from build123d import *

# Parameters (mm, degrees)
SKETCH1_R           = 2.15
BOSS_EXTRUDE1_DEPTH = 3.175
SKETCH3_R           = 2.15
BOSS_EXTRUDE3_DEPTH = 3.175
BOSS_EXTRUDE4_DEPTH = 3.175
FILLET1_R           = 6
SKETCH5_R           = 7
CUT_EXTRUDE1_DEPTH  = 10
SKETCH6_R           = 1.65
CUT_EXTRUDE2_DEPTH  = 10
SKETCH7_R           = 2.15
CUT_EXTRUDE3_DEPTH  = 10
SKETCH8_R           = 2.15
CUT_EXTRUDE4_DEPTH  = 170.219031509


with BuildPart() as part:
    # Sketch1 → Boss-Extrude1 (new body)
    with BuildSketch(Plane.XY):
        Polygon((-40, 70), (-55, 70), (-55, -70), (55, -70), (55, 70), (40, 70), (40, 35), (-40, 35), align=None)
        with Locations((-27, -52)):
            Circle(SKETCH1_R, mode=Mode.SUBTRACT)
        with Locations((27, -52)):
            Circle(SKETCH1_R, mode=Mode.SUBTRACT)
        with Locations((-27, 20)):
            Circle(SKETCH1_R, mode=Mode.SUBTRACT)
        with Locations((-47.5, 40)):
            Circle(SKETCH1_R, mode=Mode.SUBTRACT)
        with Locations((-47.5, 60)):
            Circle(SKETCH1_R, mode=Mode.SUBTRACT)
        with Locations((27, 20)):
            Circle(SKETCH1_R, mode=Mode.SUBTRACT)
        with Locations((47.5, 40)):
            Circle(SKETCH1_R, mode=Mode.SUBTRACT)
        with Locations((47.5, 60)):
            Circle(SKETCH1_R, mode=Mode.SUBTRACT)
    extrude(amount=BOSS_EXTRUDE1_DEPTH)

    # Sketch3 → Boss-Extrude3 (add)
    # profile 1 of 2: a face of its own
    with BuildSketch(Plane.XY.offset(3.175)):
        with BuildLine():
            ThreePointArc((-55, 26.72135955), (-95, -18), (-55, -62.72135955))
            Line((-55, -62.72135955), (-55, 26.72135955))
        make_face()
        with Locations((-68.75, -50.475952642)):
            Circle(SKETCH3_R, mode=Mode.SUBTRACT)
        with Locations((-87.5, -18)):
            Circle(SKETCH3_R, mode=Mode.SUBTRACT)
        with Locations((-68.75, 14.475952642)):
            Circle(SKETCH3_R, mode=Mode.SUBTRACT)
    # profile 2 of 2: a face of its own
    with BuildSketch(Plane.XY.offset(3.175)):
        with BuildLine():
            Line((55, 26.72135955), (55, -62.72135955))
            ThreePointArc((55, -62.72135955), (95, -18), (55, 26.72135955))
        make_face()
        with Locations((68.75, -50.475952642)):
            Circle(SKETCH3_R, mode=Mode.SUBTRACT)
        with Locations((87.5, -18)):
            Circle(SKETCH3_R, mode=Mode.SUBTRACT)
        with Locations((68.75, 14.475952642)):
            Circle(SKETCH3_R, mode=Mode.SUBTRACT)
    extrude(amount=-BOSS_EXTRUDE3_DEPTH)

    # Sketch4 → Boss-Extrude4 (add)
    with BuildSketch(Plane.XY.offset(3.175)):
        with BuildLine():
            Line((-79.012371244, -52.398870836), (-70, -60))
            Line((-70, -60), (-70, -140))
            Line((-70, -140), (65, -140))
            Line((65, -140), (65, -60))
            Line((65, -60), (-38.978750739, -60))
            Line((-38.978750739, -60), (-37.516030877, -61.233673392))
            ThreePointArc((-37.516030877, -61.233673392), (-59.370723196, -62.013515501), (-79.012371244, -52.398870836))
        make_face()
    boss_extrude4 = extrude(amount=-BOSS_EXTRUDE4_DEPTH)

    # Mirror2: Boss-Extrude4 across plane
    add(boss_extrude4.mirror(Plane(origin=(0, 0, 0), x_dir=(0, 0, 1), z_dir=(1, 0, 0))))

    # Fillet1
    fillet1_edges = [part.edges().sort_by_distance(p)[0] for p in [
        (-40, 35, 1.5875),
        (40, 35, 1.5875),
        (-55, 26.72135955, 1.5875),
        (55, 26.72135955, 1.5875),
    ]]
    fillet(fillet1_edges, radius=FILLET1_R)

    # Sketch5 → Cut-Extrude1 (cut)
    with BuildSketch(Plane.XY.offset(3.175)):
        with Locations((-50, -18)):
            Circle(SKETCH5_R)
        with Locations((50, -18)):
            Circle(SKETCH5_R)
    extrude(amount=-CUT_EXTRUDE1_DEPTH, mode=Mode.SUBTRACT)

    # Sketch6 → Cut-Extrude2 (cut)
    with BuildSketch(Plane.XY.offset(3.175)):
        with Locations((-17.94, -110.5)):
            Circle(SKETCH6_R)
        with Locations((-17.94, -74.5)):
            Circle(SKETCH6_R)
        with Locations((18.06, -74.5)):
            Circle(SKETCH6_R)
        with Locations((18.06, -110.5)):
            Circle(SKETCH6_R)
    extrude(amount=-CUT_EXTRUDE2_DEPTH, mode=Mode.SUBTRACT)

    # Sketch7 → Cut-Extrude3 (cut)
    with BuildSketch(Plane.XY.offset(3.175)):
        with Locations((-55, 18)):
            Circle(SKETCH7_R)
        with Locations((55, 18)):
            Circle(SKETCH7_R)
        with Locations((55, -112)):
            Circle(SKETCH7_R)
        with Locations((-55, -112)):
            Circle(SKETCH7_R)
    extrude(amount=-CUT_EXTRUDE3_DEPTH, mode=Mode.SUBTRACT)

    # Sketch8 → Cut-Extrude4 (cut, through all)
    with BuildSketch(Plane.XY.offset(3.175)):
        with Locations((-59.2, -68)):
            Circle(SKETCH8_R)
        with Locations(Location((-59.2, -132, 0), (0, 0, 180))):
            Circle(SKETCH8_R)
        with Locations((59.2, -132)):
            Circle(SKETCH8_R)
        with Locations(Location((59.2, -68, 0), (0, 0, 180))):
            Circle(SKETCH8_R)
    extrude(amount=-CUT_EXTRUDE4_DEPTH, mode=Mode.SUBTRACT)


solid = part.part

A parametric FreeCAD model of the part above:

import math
import FreeCAD as App
import Part
import Sketcher


def edges_at(feature, points):
    """Names of the edges that pass closest to the given points."""
    edges = feature.Shape.Edges
    near = lambda p: min(range(len(edges)), key=lambda i: edges[i].distToShape(Part.Vertex(*p))[0])
    return sorted({f"Edge{near(p) + 1}" for p in points})

doc = App.newDocument("Part")
body = doc.addObject("PartDesign::Body", "Body")

sketch1 = body.newObject("Sketcher::SketchObject", "Sketch")
sketch1.AttachmentSupport = (doc.getObject("XY_Plane"), [""])
sketch1.MapMode = "FlatFace"
sketch1.addGeometry([
    Part.LineSegment(App.Vector(-40, 70, 0), App.Vector(-55, 70, 0)),
    Part.LineSegment(App.Vector(-55, 70, 0), App.Vector(-55, -70, 0)),
    Part.LineSegment(App.Vector(-55, -70, 0), App.Vector(55, -70, 0)),
    Part.LineSegment(App.Vector(55, -70, 0), App.Vector(55, 70, 0)),
    Part.LineSegment(App.Vector(55, 70, 0), App.Vector(40, 70, 0)),
    Part.LineSegment(App.Vector(40, 70, 0), App.Vector(40, 35, 0)),
    Part.LineSegment(App.Vector(40, 35, 0), App.Vector(-40, 35, 0)),
    Part.LineSegment(App.Vector(-40, 35, 0), App.Vector(-40, 70, 0)),
    Part.Circle(App.Vector(-27, -52, 0), App.Vector(0, 0, 1), 2.15),
    Part.Circle(App.Vector(27, -52, 0), App.Vector(0, 0, 1), 2.15),
    Part.Circle(App.Vector(-27, 20, 0), App.Vector(0, 0, 1), 2.15),
    Part.Circle(App.Vector(-47.5, 40, 0), App.Vector(0, 0, 1), 2.15),
    Part.Circle(App.Vector(-47.5, 60, 0), App.Vector(0, 0, 1), 2.15),
    Part.Circle(App.Vector(27, 20, 0), App.Vector(0, 0, 1), 2.15),
    Part.Circle(App.Vector(47.5, 40, 0), App.Vector(0, 0, 1), 2.15),
    Part.Circle(App.Vector(47.5, 60, 0), App.Vector(0, 0, 1), 2.15),
], False)
sketch1.addConstraint([
    Sketcher.Constraint("Coincident", 0, 2, 1, 1),
    Sketcher.Constraint("Coincident", 1, 2, 2, 1),
    Sketcher.Constraint("Coincident", 2, 2, 3, 1),
    Sketcher.Constraint("Coincident", 3, 2, 4, 1),
    Sketcher.Constraint("Coincident", 4, 2, 5, 1),
    Sketcher.Constraint("Coincident", 5, 2, 6, 1),
    Sketcher.Constraint("Coincident", 6, 2, 7, 1),
    Sketcher.Constraint("Coincident", 7, 2, 0, 1),
    Sketcher.Constraint("Horizontal", 0),
    Sketcher.Constraint("Vertical", 1),
    Sketcher.Constraint("Horizontal", 2),
    Sketcher.Constraint("Vertical", 3),
    Sketcher.Constraint("Horizontal", 4),
    Sketcher.Constraint("Vertical", 5),
    Sketcher.Constraint("Horizontal", 6),
    Sketcher.Constraint("Vertical", 7),
    Sketcher.Constraint("Equal", 8, 9),
    Sketcher.Constraint("Equal", 9, 10),
    Sketcher.Constraint("Equal", 10, 11),
    Sketcher.Constraint("Equal", 11, 12),
    Sketcher.Constraint("Equal", 12, 13),
    Sketcher.Constraint("Equal", 13, 14),
    Sketcher.Constraint("Equal", 14, 15),
    Sketcher.Constraint("Symmetric", 0, 2, 2, 2, -1, 1),
    Sketcher.Constraint("Symmetric", 8, 3, 9, 3, -2),
    Sketcher.Constraint("Symmetric", 10, 3, 13, 3, -2),
    Sketcher.Constraint("Symmetric", 11, 3, 14, 3, -2),
    Sketcher.Constraint("Symmetric", 12, 3, 15, 3, -2),
    Sketcher.Constraint("Symmetric", 4, 2, 7, 2, -2),
    Sketcher.Constraint("Vertical", 8, 3, 10, 3),
    Sketcher.Constraint("Vertical", 11, 3, 12, 3),
    Sketcher.Constraint("Diameter", 8, 4.3),
    Sketcher.Constraint("DistanceX", 0, 2, 0, 1, 15.0),
    Sketcher.Constraint("DistanceX", 2, 1, 2, 2, 110.0),
    Sketcher.Constraint("DistanceY", 1, 2, 1, 1, 140.0),
    Sketcher.Constraint("DistanceY", 5, 2, 5, 1, 35.0),
    Sketcher.Constraint("DistanceX", 8, 3, -1, 1, 27.0),
    Sketcher.Constraint("DistanceY", 8, 3, -1, 1, 52.0),
    Sketcher.Constraint("DistanceY", -1, 1, 10, 3, 20.0),
    Sketcher.Constraint("DistanceY", -1, 1, 11, 3, 40.0),
    Sketcher.Constraint("DistanceY", -1, 1, 12, 3, 60.0),
    Sketcher.Constraint("DistanceX", 11, 3, 14, 3, 95.0),
])
pad1 = body.newObject("PartDesign::Pad", "Pad")
pad1.Profile = sketch1
pad1.Length = 3.175

sketch2 = body.newObject("Sketcher::SketchObject", "Sketch001")
sketch2.AttachmentSupport = (doc.getObject("XY_Plane"), [""])
sketch2.MapMode = "FlatFace"
sketch2.AttachmentOffset = App.Placement(App.Vector(0, 0, 3.175), App.Rotation())
sketch2.addGeometry([
    Part.ArcOfCircle(Part.Circle(App.Vector(-50, -18, 0), App.Vector(0, 0, 1), 45), math.radians(96.37937), math.radians(263.62063)),
    Part.LineSegment(App.Vector(-55, -62.72136, 0), App.Vector(-55, 26.72136, 0)),
    Part.Circle(App.Vector(-68.75, -50.475953, 0), App.Vector(0, 0, 1), 2.15),
    Part.Circle(App.Vector(-87.5, -18, 0), App.Vector(0, 0, 1), 2.15),
    Part.Circle(App.Vector(-68.75, 14.475953, 0), App.Vector(0, 0, 1), 2.15),
    Part.LineSegment(App.Vector(55, 26.72136, 0), App.Vector(55, -62.72136, 0)),
    Part.ArcOfCircle(Part.Circle(App.Vector(50, -18, 0), App.Vector(0, 0, 1), 45), math.radians(-83.62063), math.radians(83.62063)),
    Part.Circle(App.Vector(68.75, -50.475953, 0), App.Vector(0, 0, 1), 2.15),
    Part.Circle(App.Vector(68.75, 14.475953, 0), App.Vector(0, 0, 1), 2.15),
    Part.Circle(App.Vector(87.5, -18, 0), App.Vector(0, 0, 1), 2.15),
], False)
sketch2.addConstraint([
    Sketcher.Constraint("Coincident", 0, 1, 1, 2),
    Sketcher.Constraint("Coincident", 1, 1, 0, 2),
    Sketcher.Constraint("Coincident", 5, 1, 6, 2),
    Sketcher.Constraint("Coincident", 6, 1, 5, 2),
    Sketcher.Constraint("Vertical", 1),
    Sketcher.Constraint("Vertical", 5),
    Sketcher.Constraint("Equal", 2, 3),
    Sketcher.Constraint("Equal", 3, 4),
    Sketcher.Constraint("Equal", 0, 6),
    Sketcher.Constraint("Equal", 4, 7),
    Sketcher.Constraint("Equal", 7, 8),
    Sketcher.Constraint("Equal", 8, 9),
    Sketcher.Constraint("Symmetric", 0, 3, 6, 3, -2),
    Sketcher.Constraint("Symmetric", 2, 3, 7, 3, -2),
    Sketcher.Constraint("Symmetric", 4, 3, 8, 3, -2),
    Sketcher.Constraint("Symmetric", 3, 3, 9, 3, -2),
    Sketcher.Constraint("Horizontal", 0, 3, 3, 3),
    Sketcher.Constraint("Horizontal", 0, 1, 5, 1),
    Sketcher.Constraint("Vertical", 2, 3, 4, 3),
    Sketcher.Constraint("Radius", 0, 45.0),
    Sketcher.Constraint("Diameter", 2, 4.3),
    Sketcher.Constraint("DistanceX", 0, 3, -1, 1, 50.0),
    Sketcher.Constraint("DistanceY", 0, 3, -1, 1, 18.0),
    Sketcher.Constraint("DistanceX", 0, 1, -1, 1, 55.0),
    Sketcher.Constraint("DistanceX", 3, 3, -1, 1, 87.5),
    Sketcher.Constraint("DistanceX", 2, 3, 7, 3, 137.5),
    Sketcher.Constraint("DistanceY", 2, 3, -1, 1, 50.475953),
    Sketcher.Constraint("DistanceY", -1, 1, 4, 3, 14.475953),
])
pad2 = body.newObject("PartDesign::Pad", "Pad001")
pad2.Profile = sketch2
pad2.Length = 3.175
pad2.Reversed = True

sketch3 = body.newObject("Sketcher::SketchObject", "Sketch002")
sketch3.AttachmentSupport = (doc.getObject("XY_Plane"), [""])
sketch3.MapMode = "FlatFace"
sketch3.AttachmentOffset = App.Placement(App.Vector(0, 0, 3.175), App.Rotation())
sketch3.addGeometry([
    Part.LineSegment(App.Vector(-79.012371, -52.398871, 0), App.Vector(-70, -60, 0)),
    Part.LineSegment(App.Vector(-70, -60, 0), App.Vector(-70, -140, 0)),
    Part.LineSegment(App.Vector(-70, -140, 0), App.Vector(65, -140, 0)),
    Part.LineSegment(App.Vector(65, -140, 0), App.Vector(65, -60, 0)),
    Part.LineSegment(App.Vector(65, -60, 0), App.Vector(-38.978751, -60, 0)),
    Part.LineSegment(App.Vector(-38.978751, -60, 0), App.Vector(-37.516031, -61.233673, 0)),
    Part.ArcOfCircle(Part.Circle(App.Vector(-50, -18, 0), App.Vector(0, 0, 1), 45), math.radians(-130.144637), math.radians(-73.893626)),
], False)
sketch3.addConstraint([
    Sketcher.Constraint("Coincident", 0, 2, 1, 1),
    Sketcher.Constraint("Coincident", 1, 2, 2, 1),
    Sketcher.Constraint("Coincident", 2, 2, 3, 1),
    Sketcher.Constraint("Coincident", 3, 2, 4, 1),
    Sketcher.Constraint("Coincident", 4, 2, 5, 1),
    Sketcher.Constraint("Coincident", 5, 2, 6, 2),
    Sketcher.Constraint("Tangent", 6, 1, 0, 1),
    Sketcher.Constraint("Vertical", 1),
    Sketcher.Constraint("Horizontal", 2),
    Sketcher.Constraint("Vertical", 3),
    Sketcher.Constraint("Horizontal", 4),
    Sketcher.Constraint("Parallel", 0, 5),
    Sketcher.Constraint("Horizontal", 0, 2, 3, 2),
    Sketcher.Constraint("Radius", 6, 45.0),
    Sketcher.Constraint("DistanceX", 2, 1, 2, 2, 135.0),
    Sketcher.Constraint("DistanceY", 1, 2, 1, 1, 80.0),
    Sketcher.Constraint("DistanceX", 6, 3, -1, 1, 50.0),
    Sketcher.Constraint("DistanceY", 6, 3, -1, 1, 18.0),
    Sketcher.Constraint("DistanceX", 0, 2, -1, 1, 70.0),
    Sketcher.Constraint("DistanceY", 0, 2, -1, 1, 60.0),
    Sketcher.Constraint("DistanceX", 4, 2, 4, 1, 103.978751),
])
pad3 = body.newObject("PartDesign::Pad", "Pad002")
pad3.Profile = sketch3
pad3.Length = 3.175
pad3.Reversed = True
doc.recompute()

mirrored = body.newObject("PartDesign::Mirrored", "Mirrored")
mirrored.Originals = [pad3]
mirrored.MirrorPlane = (doc.getObject("YZ_Plane"), [""])
body.Tip = mirrored
doc.recompute()

fillet = body.newObject("PartDesign::Fillet", "Fillet")
fillet.Base = (mirrored, edges_at(mirrored, [
    (-40, 35, 1.587),
    (40, 35, 1.587),
    (-55, 26.721, 1.587),
    (55, 26.721, 1.587),
]))
fillet.Radius = 6

sketch4 = body.newObject("Sketcher::SketchObject", "Sketch003")
sketch4.AttachmentSupport = (doc.getObject("XY_Plane"), [""])
sketch4.MapMode = "FlatFace"
sketch4.AttachmentOffset = App.Placement(App.Vector(0, 0, 3.175), App.Rotation())
sketch4.addGeometry([
    Part.Circle(App.Vector(-50, -18, 0), App.Vector(0, 0, 1), 7),
    Part.Circle(App.Vector(50, -18, 0), App.Vector(0, 0, 1), 7),
], False)
sketch4.addConstraint([
    Sketcher.Constraint("Equal", 0, 1),
    Sketcher.Constraint("Symmetric", 0, 3, 1, 3, -2),
    Sketcher.Constraint("Diameter", 0, 14.0),
    Sketcher.Constraint("DistanceX", 0, 3, -1, 1, 50.0),
    Sketcher.Constraint("DistanceY", 0, 3, -1, 1, 18.0),
])
pocket1 = body.newObject("PartDesign::Pocket", "Pocket")
pocket1.Profile = sketch4
pocket1.Length = 10

sketch5 = body.newObject("Sketcher::SketchObject", "Sketch004")
sketch5.AttachmentSupport = (doc.getObject("XY_Plane"), [""])
sketch5.MapMode = "FlatFace"
sketch5.AttachmentOffset = App.Placement(App.Vector(0, 0, 3.175), App.Rotation())
sketch5.addGeometry([
    Part.Circle(App.Vector(-17.94, -110.5, 0), App.Vector(0, 0, 1), 1.65),
    Part.Circle(App.Vector(-17.94, -74.5, 0), App.Vector(0, 0, 1), 1.65),
    Part.Circle(App.Vector(18.06, -74.5, 0), App.Vector(0, 0, 1), 1.65),
    Part.Circle(App.Vector(18.06, -110.5, 0), App.Vector(0, 0, 1), 1.65),
], False)
sketch5.addConstraint([
    Sketcher.Constraint("Equal", 0, 1),
    Sketcher.Constraint("Equal", 1, 2),
    Sketcher.Constraint("Equal", 2, 3),
    Sketcher.Constraint("Horizontal", 1, 3, 2, 3),
    Sketcher.Constraint("Horizontal", 0, 3, 3, 3),
    Sketcher.Constraint("Vertical", 0, 3, 1, 3),
    Sketcher.Constraint("Vertical", 2, 3, 3, 3),
    Sketcher.Constraint("Diameter", 0, 3.3),
    Sketcher.Constraint("DistanceY", 0, 3, 1, 3, 36.0),
    Sketcher.Constraint("DistanceX", 1, 3, 2, 3, 36.0),
    Sketcher.Constraint("DistanceY", 0, 3, -1, 1, 110.5),
    Sketcher.Constraint("DistanceX", 0, 3, -1, 1, 17.94),
])
pocket2 = body.newObject("PartDesign::Pocket", "Pocket001")
pocket2.Profile = sketch5
pocket2.Length = 10

sketch6 = body.newObject("Sketcher::SketchObject", "Sketch005")
sketch6.AttachmentSupport = (doc.getObject("XY_Plane"), [""])
sketch6.MapMode = "FlatFace"
sketch6.AttachmentOffset = App.Placement(App.Vector(0, 0, 3.175), App.Rotation())
sketch6.addGeometry([
    Part.Circle(App.Vector(-55, 18, 0), App.Vector(0, 0, 1), 2.15),
    Part.Circle(App.Vector(55, 18, 0), App.Vector(0, 0, 1), 2.15),
    Part.Circle(App.Vector(55, -112, 0), App.Vector(0, 0, 1), 2.15),
    Part.Circle(App.Vector(-55, -112, 0), App.Vector(0, 0, 1), 2.15),
], False)
sketch6.addConstraint([
    Sketcher.Constraint("Equal", 0, 1),
    Sketcher.Constraint("Equal", 1, 2),
    Sketcher.Constraint("Equal", 2, 3),
    Sketcher.Constraint("Symmetric", 0, 3, 1, 3, -2),
    Sketcher.Constraint("Symmetric", 2, 3, 3, 3, -2),
    Sketcher.Constraint("Vertical", 1, 3, 2, 3),
    Sketcher.Constraint("Diameter", 0, 4.3),
    Sketcher.Constraint("DistanceX", 0, 3, -1, 1, 55.0),
    Sketcher.Constraint("DistanceY", -1, 1, 0, 3, 18.0),
    Sketcher.Constraint("DistanceY", 2, 3, -1, 1, 112.0),
])
pocket3 = body.newObject("PartDesign::Pocket", "Pocket002")
pocket3.Profile = sketch6
pocket3.Length = 10

sketch7 = body.newObject("Sketcher::SketchObject", "Sketch006")
sketch7.AttachmentSupport = (doc.getObject("XY_Plane"), [""])
sketch7.MapMode = "FlatFace"
sketch7.AttachmentOffset = App.Placement(App.Vector(0, 0, 3.175), App.Rotation())
sketch7.addGeometry([
    Part.Circle(App.Vector(-59.2, -68, 0), App.Vector(0, 0, 1), 2.15),
    Part.Circle(App.Vector(-59.2, -132, 0), App.Vector(0, 0, 1), 2.15),
    Part.Circle(App.Vector(59.2, -132, 0), App.Vector(0, 0, 1), 2.15),
    Part.Circle(App.Vector(59.2, -68, 0), App.Vector(0, 0, 1), 2.15),
], False)
sketch7.addConstraint([
    Sketcher.Constraint("Equal", 0, 1),
    Sketcher.Constraint("Equal", 1, 2),
    Sketcher.Constraint("Equal", 2, 3),
    Sketcher.Constraint("Symmetric", 1, 3, 2, 3, -2),
    Sketcher.Constraint("Symmetric", 0, 3, 3, 3, -2),
    Sketcher.Constraint("Vertical", 0, 3, 1, 3),
    Sketcher.Constraint("Diameter", 0, 4.3),
    Sketcher.Constraint("DistanceY", 0, 3, -1, 1, 68.0),
    Sketcher.Constraint("DistanceY", 1, 3, -1, 1, 132.0),
    Sketcher.Constraint("DistanceX", 0, 3, -1, 1, 59.2),
])
pocket4 = body.newObject("PartDesign::Pocket", "Pocket003")
pocket4.Profile = sketch7
pocket4.Type = "ThroughAll"

doc.recompute()
